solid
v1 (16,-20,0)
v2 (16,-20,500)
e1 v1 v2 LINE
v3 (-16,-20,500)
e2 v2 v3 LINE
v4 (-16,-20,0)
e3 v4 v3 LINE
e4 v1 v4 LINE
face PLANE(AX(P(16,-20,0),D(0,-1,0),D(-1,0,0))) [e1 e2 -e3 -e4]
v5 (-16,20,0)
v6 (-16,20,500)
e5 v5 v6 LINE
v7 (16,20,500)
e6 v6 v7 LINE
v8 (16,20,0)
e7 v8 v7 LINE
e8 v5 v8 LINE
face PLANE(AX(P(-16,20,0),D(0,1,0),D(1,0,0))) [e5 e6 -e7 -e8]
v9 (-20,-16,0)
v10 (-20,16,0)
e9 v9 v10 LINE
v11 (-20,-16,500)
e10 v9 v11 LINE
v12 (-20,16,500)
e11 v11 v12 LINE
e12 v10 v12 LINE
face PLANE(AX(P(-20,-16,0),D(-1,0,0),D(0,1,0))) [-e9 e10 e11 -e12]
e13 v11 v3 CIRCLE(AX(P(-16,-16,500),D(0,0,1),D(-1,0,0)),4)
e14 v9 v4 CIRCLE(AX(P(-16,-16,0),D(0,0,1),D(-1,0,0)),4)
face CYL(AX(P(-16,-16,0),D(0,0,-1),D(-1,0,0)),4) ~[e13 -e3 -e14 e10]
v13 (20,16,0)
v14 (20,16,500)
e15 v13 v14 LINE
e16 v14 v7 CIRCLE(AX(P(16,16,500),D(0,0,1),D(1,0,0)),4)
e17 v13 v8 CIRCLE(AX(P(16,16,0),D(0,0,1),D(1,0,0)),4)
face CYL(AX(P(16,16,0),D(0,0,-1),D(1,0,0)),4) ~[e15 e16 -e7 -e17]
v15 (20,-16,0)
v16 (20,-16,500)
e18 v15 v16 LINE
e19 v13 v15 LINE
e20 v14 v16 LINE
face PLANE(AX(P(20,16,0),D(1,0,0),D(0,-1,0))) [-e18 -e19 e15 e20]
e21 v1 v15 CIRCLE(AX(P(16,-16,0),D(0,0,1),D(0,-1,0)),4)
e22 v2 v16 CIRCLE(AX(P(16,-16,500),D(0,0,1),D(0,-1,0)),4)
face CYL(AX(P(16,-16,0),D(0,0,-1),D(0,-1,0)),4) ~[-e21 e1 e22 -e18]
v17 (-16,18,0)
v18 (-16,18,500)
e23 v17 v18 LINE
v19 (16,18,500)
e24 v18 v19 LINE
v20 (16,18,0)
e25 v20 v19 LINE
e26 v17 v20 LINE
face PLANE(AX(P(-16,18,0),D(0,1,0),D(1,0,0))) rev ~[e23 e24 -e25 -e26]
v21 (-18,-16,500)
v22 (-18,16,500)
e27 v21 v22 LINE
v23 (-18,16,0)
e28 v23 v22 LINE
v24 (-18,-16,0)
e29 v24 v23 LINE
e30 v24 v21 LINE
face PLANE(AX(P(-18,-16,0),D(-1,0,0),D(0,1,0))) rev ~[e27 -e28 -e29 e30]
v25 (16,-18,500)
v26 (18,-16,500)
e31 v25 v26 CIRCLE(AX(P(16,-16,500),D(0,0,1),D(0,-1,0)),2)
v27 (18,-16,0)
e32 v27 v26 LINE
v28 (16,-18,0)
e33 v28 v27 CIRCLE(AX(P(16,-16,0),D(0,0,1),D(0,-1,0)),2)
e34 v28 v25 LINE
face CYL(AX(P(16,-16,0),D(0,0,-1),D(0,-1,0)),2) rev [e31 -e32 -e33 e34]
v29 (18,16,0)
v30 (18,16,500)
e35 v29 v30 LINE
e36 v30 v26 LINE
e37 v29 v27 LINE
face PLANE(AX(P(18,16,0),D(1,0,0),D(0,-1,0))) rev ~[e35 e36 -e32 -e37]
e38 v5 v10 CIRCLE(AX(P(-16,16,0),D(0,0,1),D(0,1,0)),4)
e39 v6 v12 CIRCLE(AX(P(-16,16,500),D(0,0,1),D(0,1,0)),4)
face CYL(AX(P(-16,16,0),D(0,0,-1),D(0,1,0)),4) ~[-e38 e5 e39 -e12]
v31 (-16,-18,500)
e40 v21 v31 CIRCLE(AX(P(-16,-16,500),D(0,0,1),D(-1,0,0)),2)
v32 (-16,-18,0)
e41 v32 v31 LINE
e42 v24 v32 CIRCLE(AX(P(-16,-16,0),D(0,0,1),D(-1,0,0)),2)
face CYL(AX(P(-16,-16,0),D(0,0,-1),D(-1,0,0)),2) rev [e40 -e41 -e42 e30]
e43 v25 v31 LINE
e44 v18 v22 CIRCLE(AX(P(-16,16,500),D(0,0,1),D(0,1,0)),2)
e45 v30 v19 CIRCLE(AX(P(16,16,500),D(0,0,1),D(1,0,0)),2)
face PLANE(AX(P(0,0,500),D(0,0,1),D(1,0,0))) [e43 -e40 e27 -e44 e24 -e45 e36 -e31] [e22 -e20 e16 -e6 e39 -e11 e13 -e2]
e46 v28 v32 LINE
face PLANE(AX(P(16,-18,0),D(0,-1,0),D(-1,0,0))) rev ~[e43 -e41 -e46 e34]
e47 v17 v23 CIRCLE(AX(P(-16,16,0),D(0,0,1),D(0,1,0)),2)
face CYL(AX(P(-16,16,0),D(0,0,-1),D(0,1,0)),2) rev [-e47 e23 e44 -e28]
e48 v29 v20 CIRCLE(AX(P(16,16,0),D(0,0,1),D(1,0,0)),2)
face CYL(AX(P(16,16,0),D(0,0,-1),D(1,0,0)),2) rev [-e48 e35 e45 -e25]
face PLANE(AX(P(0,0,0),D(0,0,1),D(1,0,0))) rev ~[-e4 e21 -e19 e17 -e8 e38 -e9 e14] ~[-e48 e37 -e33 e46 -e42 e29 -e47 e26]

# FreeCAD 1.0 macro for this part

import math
import FreeCAD as App
import Part
import Sketcher
Q = App.Units.Quantity

doc = App.newDocument("Part")
body = doc.addObject("PartDesign::Body", "Body")

sketch1 = body.newObject("Sketcher::SketchObject", "Sketch")
sketch1.AttachmentSupport = (doc.getObject("XY_Plane"), [""])
sketch1.MapMode = "FlatFace"
sketch1.addGeometry(Part.LineSegment(App.Vector(-20, 16, 0), App.Vector(-20, -16, 0)), False)
sketch1.addGeometry(Part.ArcOfCircle(Part.Circle(App.Vector(-16, -16, 0), App.Vector(0, 0, 1), 4), math.radians(180), math.radians(270)), False)
sketch1.addGeometry(Part.LineSegment(App.Vector(-16, -20, 0), App.Vector(16, -20, 0)), False)
sketch1.addGeometry(Part.ArcOfCircle(Part.Circle(App.Vector(16, -16, 0), App.Vector(0, 0, 1), 4), math.radians(-90), math.radians(0)), False)
sketch1.addGeometry(Part.LineSegment(App.Vector(20, -16, 0), App.Vector(20, 16, 0)), False)
sketch1.addGeometry(Part.ArcOfCircle(Part.Circle(App.Vector(16, 16, 0), App.Vector(0, 0, 1), 4), math.radians(0), math.radians(90)), False)
sketch1.addGeometry(Part.LineSegment(App.Vector(16, 20, 0), App.Vector(-16, 20, 0)), False)
sketch1.addGeometry(Part.ArcOfCircle(Part.Circle(App.Vector(-16, 16, 0), App.Vector(0, 0, 1), 4), math.radians(90), math.radians(180)), False)
sketch1.addGeometry(Part.ArcOfCircle(Part.Circle(App.Vector(-16, 16, 0), App.Vector(0, 0, 1), 2), math.radians(90), math.radians(180)), False)
sketch1.addGeometry(Part.LineSegment(App.Vector(-16, 18, 0), App.Vector(16, 18, 0)), False)
sketch1.addGeometry(Part.ArcOfCircle(Part.Circle(App.Vector(16, 16, 0), App.Vector(0, 0, 1), 2), math.radians(0), math.radians(90)), False)
sketch1.addGeometry(Part.LineSegment(App.Vector(18, 16, 0), App.Vector(18, -16, 0)), False)
sketch1.addGeometry(Part.ArcOfCircle(Part.Circle(App.Vector(16, -16, 0), App.Vector(0, 0, 1), 2), math.radians(-90), math.radians(0)), False)
sketch1.addGeometry(Part.LineSegment(App.Vector(16, -18, 0), App.Vector(-16, -18, 0)), False)
sketch1.addGeometry(Part.ArcOfCircle(Part.Circle(App.Vector(-16, -16, 0), App.Vector(0, 0, 1), 2), math.radians(180), math.radians(270)), False)
sketch1.addGeometry(Part.LineSegment(App.Vector(-18, -16, 0), App.Vector(-18, 16, 0)), False)
sketch1.addConstraint(Sketcher.Constraint("Tangent", 0, 2, 1, 1))
sketch1.addConstraint(Sketcher.Constraint("Tangent", 1, 2, 2, 1))
sketch1.addConstraint(Sketcher.Constraint("Tangent", 2, 2, 3, 1))
sketch1.addConstraint(Sketcher.Constraint("Tangent", 3, 2, 4, 1))
sketch1.addConstraint(Sketcher.Constraint("Tangent", 4, 2, 5, 1))
sketch1.addConstraint(Sketcher.Constraint("Tangent", 5, 2, 6, 1))
sketch1.addConstraint(Sketcher.Constraint("Tangent", 6, 2, 7, 1))
sketch1.addConstraint(Sketcher.Constraint("Tangent", 7, 2, 0, 1))
sketch1.addConstraint(Sketcher.Constraint("Tangent", 8, 1, 9, 1))
sketch1.addConstraint(Sketcher.Constraint("Tangent", 9, 2, 10, 2))
sketch1.addConstraint(Sketcher.Constraint("Tangent", 10, 1, 11, 1))
sketch1.addConstraint(Sketcher.Constraint("Tangent", 11, 2, 12, 2))
sketch1.addConstraint(Sketcher.Constraint("Tangent", 12, 1, 13, 1))
sketch1.addConstraint(Sketcher.Constraint("Tangent", 13, 2, 14, 2))
sketch1.addConstraint(Sketcher.Constraint("Tangent", 14, 1, 15, 1))
sketch1.addConstraint(Sketcher.Constraint("Tangent", 15, 2, 8, 2))
sketch1.addConstraint(Sketcher.Constraint("Vertical", 0))
sketch1.addConstraint(Sketcher.Constraint("Horizontal", 2))
sketch1.addConstraint(Sketcher.Constraint("Vertical", 4))
sketch1.addConstraint(Sketcher.Constraint("Horizontal", 6))
sketch1.addConstraint(Sketcher.Constraint("Horizontal", 9))
sketch1.addConstraint(Sketcher.Constraint("Vertical", 11))
sketch1.addConstraint(Sketcher.Constraint("Horizontal", 13))
sketch1.addConstraint(Sketcher.Constraint("Vertical", 15))
sketch1.addConstraint(Sketcher.Constraint("Coincident", 8, 3, 7, 3))
sketch1.addConstraint(Sketcher.Constraint("Coincident", 10, 3, 5, 3))
sketch1.addConstraint(Sketcher.Constraint("Coincident", 12, 3, 3, 3))
sketch1.addConstraint(Sketcher.Constraint("Equal", 1, 3))
sketch1.addConstraint(Sketcher.Constraint("Equal", 3, 5))
sketch1.addConstraint(Sketcher.Constraint("Equal", 5, 7))
sketch1.addConstraint(Sketcher.Constraint("Equal", 12, 14))
sketch1.addConstraint(Sketcher.Constraint("Symmetric", 1, 3, 5, 3, -1, 1))
sketch1.addConstraint(Sketcher.Constraint("Equal", 13, 0))
sketch1.addConstraint(Sketcher.Constraint("Radius", 1, Q("4 mm")))
sketch1.addConstraint(Sketcher.Constraint("Radius", 8, Q("2 mm")))
sketch1.addConstraint(Sketcher.Constraint("DistanceX", 0, 2, -1, 1, Q("20 mm")))
pad1 = body.newObject("PartDesign::Pad", "Pad")
pad1.Profile = sketch1
pad1.Length = 500

doc.recompute()
